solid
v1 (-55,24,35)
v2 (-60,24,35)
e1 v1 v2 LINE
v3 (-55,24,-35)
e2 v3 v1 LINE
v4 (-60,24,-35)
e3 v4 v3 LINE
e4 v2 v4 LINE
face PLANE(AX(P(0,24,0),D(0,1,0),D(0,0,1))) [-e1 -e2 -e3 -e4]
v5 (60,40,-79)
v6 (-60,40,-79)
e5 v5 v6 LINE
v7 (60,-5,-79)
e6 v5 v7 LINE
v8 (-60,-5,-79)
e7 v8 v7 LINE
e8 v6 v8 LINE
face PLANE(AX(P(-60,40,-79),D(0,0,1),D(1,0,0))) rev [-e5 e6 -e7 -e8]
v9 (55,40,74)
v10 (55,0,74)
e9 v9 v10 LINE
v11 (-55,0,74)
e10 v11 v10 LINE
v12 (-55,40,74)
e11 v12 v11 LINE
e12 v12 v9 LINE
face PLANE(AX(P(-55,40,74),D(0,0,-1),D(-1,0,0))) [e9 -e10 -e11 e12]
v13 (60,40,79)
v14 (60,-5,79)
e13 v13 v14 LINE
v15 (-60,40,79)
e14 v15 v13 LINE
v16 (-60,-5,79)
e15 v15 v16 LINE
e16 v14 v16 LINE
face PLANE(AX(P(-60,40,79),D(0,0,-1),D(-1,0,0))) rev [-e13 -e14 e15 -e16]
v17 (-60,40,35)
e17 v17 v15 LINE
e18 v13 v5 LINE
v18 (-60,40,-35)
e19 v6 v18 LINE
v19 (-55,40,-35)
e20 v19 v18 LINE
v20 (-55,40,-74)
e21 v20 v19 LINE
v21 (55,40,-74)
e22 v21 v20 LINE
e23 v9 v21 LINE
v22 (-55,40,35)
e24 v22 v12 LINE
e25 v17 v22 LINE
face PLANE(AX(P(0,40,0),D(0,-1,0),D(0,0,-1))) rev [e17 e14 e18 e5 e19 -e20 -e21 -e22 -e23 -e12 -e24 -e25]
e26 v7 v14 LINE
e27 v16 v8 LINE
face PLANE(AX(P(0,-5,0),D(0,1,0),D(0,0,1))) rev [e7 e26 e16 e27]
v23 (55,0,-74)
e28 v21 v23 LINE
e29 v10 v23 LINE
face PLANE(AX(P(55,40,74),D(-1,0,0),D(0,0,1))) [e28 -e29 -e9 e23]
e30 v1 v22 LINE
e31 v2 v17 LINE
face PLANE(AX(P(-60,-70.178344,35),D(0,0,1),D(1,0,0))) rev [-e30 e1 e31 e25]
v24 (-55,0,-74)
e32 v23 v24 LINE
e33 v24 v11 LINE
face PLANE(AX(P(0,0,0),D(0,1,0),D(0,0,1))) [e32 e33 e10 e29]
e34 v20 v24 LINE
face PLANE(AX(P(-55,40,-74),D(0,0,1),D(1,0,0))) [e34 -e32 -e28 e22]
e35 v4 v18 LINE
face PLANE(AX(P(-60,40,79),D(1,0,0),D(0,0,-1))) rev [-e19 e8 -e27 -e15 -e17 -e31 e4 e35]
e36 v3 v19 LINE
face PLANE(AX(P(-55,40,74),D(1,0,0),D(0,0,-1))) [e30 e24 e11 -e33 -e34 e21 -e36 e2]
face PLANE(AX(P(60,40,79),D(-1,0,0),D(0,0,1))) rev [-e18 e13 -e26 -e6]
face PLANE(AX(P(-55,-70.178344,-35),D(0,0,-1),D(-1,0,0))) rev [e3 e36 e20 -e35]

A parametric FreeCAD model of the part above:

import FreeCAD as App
import Part
import Sketcher
Q = App.Units.Quantity

doc = App.newDocument("Part")
body = doc.addObject("PartDesign::Body", "Body")

# Sketch on XZ plane
sketch1 = doc.addObject("Sketcher::SketchObject", "Sketch")
body.addObject(sketch1)
sketch1.AttachmentSupport = (doc.XZ_Plane, [""])
sketch1.MapMode = "FlatFace"
sketch1.addGeometry([
    Part.LineSegment(App.Vector(-60, -79, 0), App.Vector(-60, 79, 0)),  # 0
    Part.LineSegment(App.Vector(-60, 79, 0), App.Vector(60, 79, 0)),  # 1
    Part.LineSegment(App.Vector(60, 79, 0), App.Vector(60, -79, 0)),  # 2
    Part.LineSegment(App.Vector(60, -79, 0), App.Vector(-60, -79, 0)),  # 3
    Part.LineSegment(App.Vector(55, 74, 0), App.Vector(-55, 74, 0)),  # 4
    Part.LineSegment(App.Vector(-55, 74, 0), App.Vector(-55, -74, 0)),  # 5
    Part.LineSegment(App.Vector(-55, -74, 0), App.Vector(55, -74, 0)),  # 6
    Part.LineSegment(App.Vector(55, -74, 0), App.Vector(55, 74, 0)),  # 7
], False)
sketch1.addConstraint([
    Sketcher.Constraint("Coincident", 0, 2, 1, 1),
    Sketcher.Constraint("Coincident", 1, 2, 2, 1),
    Sketcher.Constraint("Coincident", 2, 2, 3, 1),
    Sketcher.Constraint("Coincident", 3, 2, 0, 1),
    Sketcher.Constraint("Coincident", 4, 2, 5, 1),
    Sketcher.Constraint("Coincident", 5, 2, 6, 1),
    Sketcher.Constraint("Coincident", 6, 2, 7, 1),
    Sketcher.Constraint("Coincident", 7, 2, 4, 1),
    Sketcher.Constraint("Vertical", 0),
    Sketcher.Constraint("Horizontal", 1),
    Sketcher.Constraint("Vertical", 2),
    Sketcher.Constraint("Horizontal", 3),
    Sketcher.Constraint("Horizontal", 4),
    Sketcher.Constraint("Vertical", 5),
    Sketcher.Constraint("Horizontal", 6),
    Sketcher.Constraint("Vertical", 7),
    Sketcher.Constraint("Symmetric", 0, 2, 2, 2, -1, 1),
    Sketcher.Constraint("Symmetric", 4, 2, 6, 2, -1, 1),
    Sketcher.Constraint("DistanceX", 1, 1, 1, 2, Q("120 mm")),
    Sketcher.Constraint("DistanceX", 4, 2, 4, 1, Q("110 mm")),
    Sketcher.Constraint("DistanceY", 0, 1, 0, 2, Q("158 mm")),
    Sketcher.Constraint("DistanceY", 5, 2, 5, 1, Q("148 mm")),
])
pad1 = doc.addObject("PartDesign::Pad", "Pad")
body.addObject(pad1)
pad1.Profile = sketch1
pad1.Length = 40
pad1.Reversed = True

# Sketch on XZ plane
sketch2 = doc.addObject("Sketcher::SketchObject", "Sketch001")
body.addObject(sketch2)
sketch2.AttachmentSupport = (doc.XZ_Plane, [""])
sketch2.MapMode = "FlatFace"
sketch2.addGeometry([
    Part.LineSegment(App.Vector(-60, 79, 0), App.Vector(-60, -79, 0)),
    Part.LineSegment(App.Vector(-60, -79, 0), App.Vector(60, -79, 0)),
    Part.LineSegment(App.Vector(60, -79, 0), App.Vector(60, 79, 0)),
    Part.LineSegment(App.Vector(60, 79, 0), App.Vector(-60, 79, 0)),
], False)
sketch2.addConstraint([
    Sketcher.Constraint("Coincident", 0, 2, 1, 1),
    Sketcher.Constraint("Coincident", 1, 2, 2, 1),
    Sketcher.Constraint("Coincident", 2, 2, 3, 1),
    Sketcher.Constraint("Coincident", 3, 2, 0, 1),
    Sketcher.Constraint("Vertical", 0),
    Sketcher.Constraint("Horizontal", 1),
    Sketcher.Constraint("Vertical", 2),
    Sketcher.Constraint("Horizontal", 3),
    Sketcher.Constraint("Symmetric", 0, 2, 2, 2, -1, 1),
    Sketcher.Constraint("DistanceX", 1, 1, 1, 2, Q("120 mm")),
    Sketcher.Constraint("DistanceY", 0, 2, 0, 1, Q("158 mm")),
])
pad2 = doc.addObject("PartDesign::Pad", "Pad001")
body.addObject(pad2)
pad2.Profile = sketch2
pad2.Length = 5

# Sketch on XZ plane
sketch3 = doc.addObject("Sketcher::SketchObject", "Sketch002")
body.addObject(sketch3)
sketch3.AttachmentSupport = (doc.XZ_Plane, [""])
sketch3.MapMode = "FlatFace"
sketch3.AttachmentOffset = App.Placement(App.Vector(0, 0, -40), App.Rotation())
sketch3.addGeometry([
    Part.LineSegment(App.Vector(-60, -35, 0), App.Vector(-60, 35, 0)),
    Part.LineSegment(App.Vector(-60, 35, 0), App.Vector(-55, 35, 0)),
    Part.LineSegment(App.Vector(-55, 35, 0), App.Vector(-55, -35, 0)),
    Part.LineSegment(App.Vector(-55, -35, 0), App.Vector(-60, -35, 0)),
], False)
sketch3.addConstraint([
    Sketcher.Constraint("Coincident", 0, 2, 1, 1),
    Sketcher.Constraint("Coincident", 1, 2, 2, 1),
    Sketcher.Constraint("Coincident", 2, 2, 3, 1),
    Sketcher.Constraint("Coincident", 3, 2, 0, 1),
    Sketcher.Constraint("Vertical", 0),
    Sketcher.Constraint("Horizontal", 1),
    Sketcher.Constraint("Vertical", 2),
    Sketcher.Constraint("Horizontal", 3),
    Sketcher.Constraint("DistanceX", 1, 1, 1, 2, Q("5 mm")),
    Sketcher.Constraint("DistanceY", 0, 1, 0, 2, Q("70 mm")),
    Sketcher.Constraint("DistanceX", 0, 2, -1, 1, Q("60 mm")),
    Sketcher.Constraint("DistanceY", -1, 1, 0, 2, Q("35 mm")),
])
pocket1 = doc.addObject("PartDesign::Pocket", "Pocket")
body.addObject(pocket1)
pocket1.Profile = sketch3
pocket1.Length = 16
pocket1.Reversed = True

doc.recompute()
